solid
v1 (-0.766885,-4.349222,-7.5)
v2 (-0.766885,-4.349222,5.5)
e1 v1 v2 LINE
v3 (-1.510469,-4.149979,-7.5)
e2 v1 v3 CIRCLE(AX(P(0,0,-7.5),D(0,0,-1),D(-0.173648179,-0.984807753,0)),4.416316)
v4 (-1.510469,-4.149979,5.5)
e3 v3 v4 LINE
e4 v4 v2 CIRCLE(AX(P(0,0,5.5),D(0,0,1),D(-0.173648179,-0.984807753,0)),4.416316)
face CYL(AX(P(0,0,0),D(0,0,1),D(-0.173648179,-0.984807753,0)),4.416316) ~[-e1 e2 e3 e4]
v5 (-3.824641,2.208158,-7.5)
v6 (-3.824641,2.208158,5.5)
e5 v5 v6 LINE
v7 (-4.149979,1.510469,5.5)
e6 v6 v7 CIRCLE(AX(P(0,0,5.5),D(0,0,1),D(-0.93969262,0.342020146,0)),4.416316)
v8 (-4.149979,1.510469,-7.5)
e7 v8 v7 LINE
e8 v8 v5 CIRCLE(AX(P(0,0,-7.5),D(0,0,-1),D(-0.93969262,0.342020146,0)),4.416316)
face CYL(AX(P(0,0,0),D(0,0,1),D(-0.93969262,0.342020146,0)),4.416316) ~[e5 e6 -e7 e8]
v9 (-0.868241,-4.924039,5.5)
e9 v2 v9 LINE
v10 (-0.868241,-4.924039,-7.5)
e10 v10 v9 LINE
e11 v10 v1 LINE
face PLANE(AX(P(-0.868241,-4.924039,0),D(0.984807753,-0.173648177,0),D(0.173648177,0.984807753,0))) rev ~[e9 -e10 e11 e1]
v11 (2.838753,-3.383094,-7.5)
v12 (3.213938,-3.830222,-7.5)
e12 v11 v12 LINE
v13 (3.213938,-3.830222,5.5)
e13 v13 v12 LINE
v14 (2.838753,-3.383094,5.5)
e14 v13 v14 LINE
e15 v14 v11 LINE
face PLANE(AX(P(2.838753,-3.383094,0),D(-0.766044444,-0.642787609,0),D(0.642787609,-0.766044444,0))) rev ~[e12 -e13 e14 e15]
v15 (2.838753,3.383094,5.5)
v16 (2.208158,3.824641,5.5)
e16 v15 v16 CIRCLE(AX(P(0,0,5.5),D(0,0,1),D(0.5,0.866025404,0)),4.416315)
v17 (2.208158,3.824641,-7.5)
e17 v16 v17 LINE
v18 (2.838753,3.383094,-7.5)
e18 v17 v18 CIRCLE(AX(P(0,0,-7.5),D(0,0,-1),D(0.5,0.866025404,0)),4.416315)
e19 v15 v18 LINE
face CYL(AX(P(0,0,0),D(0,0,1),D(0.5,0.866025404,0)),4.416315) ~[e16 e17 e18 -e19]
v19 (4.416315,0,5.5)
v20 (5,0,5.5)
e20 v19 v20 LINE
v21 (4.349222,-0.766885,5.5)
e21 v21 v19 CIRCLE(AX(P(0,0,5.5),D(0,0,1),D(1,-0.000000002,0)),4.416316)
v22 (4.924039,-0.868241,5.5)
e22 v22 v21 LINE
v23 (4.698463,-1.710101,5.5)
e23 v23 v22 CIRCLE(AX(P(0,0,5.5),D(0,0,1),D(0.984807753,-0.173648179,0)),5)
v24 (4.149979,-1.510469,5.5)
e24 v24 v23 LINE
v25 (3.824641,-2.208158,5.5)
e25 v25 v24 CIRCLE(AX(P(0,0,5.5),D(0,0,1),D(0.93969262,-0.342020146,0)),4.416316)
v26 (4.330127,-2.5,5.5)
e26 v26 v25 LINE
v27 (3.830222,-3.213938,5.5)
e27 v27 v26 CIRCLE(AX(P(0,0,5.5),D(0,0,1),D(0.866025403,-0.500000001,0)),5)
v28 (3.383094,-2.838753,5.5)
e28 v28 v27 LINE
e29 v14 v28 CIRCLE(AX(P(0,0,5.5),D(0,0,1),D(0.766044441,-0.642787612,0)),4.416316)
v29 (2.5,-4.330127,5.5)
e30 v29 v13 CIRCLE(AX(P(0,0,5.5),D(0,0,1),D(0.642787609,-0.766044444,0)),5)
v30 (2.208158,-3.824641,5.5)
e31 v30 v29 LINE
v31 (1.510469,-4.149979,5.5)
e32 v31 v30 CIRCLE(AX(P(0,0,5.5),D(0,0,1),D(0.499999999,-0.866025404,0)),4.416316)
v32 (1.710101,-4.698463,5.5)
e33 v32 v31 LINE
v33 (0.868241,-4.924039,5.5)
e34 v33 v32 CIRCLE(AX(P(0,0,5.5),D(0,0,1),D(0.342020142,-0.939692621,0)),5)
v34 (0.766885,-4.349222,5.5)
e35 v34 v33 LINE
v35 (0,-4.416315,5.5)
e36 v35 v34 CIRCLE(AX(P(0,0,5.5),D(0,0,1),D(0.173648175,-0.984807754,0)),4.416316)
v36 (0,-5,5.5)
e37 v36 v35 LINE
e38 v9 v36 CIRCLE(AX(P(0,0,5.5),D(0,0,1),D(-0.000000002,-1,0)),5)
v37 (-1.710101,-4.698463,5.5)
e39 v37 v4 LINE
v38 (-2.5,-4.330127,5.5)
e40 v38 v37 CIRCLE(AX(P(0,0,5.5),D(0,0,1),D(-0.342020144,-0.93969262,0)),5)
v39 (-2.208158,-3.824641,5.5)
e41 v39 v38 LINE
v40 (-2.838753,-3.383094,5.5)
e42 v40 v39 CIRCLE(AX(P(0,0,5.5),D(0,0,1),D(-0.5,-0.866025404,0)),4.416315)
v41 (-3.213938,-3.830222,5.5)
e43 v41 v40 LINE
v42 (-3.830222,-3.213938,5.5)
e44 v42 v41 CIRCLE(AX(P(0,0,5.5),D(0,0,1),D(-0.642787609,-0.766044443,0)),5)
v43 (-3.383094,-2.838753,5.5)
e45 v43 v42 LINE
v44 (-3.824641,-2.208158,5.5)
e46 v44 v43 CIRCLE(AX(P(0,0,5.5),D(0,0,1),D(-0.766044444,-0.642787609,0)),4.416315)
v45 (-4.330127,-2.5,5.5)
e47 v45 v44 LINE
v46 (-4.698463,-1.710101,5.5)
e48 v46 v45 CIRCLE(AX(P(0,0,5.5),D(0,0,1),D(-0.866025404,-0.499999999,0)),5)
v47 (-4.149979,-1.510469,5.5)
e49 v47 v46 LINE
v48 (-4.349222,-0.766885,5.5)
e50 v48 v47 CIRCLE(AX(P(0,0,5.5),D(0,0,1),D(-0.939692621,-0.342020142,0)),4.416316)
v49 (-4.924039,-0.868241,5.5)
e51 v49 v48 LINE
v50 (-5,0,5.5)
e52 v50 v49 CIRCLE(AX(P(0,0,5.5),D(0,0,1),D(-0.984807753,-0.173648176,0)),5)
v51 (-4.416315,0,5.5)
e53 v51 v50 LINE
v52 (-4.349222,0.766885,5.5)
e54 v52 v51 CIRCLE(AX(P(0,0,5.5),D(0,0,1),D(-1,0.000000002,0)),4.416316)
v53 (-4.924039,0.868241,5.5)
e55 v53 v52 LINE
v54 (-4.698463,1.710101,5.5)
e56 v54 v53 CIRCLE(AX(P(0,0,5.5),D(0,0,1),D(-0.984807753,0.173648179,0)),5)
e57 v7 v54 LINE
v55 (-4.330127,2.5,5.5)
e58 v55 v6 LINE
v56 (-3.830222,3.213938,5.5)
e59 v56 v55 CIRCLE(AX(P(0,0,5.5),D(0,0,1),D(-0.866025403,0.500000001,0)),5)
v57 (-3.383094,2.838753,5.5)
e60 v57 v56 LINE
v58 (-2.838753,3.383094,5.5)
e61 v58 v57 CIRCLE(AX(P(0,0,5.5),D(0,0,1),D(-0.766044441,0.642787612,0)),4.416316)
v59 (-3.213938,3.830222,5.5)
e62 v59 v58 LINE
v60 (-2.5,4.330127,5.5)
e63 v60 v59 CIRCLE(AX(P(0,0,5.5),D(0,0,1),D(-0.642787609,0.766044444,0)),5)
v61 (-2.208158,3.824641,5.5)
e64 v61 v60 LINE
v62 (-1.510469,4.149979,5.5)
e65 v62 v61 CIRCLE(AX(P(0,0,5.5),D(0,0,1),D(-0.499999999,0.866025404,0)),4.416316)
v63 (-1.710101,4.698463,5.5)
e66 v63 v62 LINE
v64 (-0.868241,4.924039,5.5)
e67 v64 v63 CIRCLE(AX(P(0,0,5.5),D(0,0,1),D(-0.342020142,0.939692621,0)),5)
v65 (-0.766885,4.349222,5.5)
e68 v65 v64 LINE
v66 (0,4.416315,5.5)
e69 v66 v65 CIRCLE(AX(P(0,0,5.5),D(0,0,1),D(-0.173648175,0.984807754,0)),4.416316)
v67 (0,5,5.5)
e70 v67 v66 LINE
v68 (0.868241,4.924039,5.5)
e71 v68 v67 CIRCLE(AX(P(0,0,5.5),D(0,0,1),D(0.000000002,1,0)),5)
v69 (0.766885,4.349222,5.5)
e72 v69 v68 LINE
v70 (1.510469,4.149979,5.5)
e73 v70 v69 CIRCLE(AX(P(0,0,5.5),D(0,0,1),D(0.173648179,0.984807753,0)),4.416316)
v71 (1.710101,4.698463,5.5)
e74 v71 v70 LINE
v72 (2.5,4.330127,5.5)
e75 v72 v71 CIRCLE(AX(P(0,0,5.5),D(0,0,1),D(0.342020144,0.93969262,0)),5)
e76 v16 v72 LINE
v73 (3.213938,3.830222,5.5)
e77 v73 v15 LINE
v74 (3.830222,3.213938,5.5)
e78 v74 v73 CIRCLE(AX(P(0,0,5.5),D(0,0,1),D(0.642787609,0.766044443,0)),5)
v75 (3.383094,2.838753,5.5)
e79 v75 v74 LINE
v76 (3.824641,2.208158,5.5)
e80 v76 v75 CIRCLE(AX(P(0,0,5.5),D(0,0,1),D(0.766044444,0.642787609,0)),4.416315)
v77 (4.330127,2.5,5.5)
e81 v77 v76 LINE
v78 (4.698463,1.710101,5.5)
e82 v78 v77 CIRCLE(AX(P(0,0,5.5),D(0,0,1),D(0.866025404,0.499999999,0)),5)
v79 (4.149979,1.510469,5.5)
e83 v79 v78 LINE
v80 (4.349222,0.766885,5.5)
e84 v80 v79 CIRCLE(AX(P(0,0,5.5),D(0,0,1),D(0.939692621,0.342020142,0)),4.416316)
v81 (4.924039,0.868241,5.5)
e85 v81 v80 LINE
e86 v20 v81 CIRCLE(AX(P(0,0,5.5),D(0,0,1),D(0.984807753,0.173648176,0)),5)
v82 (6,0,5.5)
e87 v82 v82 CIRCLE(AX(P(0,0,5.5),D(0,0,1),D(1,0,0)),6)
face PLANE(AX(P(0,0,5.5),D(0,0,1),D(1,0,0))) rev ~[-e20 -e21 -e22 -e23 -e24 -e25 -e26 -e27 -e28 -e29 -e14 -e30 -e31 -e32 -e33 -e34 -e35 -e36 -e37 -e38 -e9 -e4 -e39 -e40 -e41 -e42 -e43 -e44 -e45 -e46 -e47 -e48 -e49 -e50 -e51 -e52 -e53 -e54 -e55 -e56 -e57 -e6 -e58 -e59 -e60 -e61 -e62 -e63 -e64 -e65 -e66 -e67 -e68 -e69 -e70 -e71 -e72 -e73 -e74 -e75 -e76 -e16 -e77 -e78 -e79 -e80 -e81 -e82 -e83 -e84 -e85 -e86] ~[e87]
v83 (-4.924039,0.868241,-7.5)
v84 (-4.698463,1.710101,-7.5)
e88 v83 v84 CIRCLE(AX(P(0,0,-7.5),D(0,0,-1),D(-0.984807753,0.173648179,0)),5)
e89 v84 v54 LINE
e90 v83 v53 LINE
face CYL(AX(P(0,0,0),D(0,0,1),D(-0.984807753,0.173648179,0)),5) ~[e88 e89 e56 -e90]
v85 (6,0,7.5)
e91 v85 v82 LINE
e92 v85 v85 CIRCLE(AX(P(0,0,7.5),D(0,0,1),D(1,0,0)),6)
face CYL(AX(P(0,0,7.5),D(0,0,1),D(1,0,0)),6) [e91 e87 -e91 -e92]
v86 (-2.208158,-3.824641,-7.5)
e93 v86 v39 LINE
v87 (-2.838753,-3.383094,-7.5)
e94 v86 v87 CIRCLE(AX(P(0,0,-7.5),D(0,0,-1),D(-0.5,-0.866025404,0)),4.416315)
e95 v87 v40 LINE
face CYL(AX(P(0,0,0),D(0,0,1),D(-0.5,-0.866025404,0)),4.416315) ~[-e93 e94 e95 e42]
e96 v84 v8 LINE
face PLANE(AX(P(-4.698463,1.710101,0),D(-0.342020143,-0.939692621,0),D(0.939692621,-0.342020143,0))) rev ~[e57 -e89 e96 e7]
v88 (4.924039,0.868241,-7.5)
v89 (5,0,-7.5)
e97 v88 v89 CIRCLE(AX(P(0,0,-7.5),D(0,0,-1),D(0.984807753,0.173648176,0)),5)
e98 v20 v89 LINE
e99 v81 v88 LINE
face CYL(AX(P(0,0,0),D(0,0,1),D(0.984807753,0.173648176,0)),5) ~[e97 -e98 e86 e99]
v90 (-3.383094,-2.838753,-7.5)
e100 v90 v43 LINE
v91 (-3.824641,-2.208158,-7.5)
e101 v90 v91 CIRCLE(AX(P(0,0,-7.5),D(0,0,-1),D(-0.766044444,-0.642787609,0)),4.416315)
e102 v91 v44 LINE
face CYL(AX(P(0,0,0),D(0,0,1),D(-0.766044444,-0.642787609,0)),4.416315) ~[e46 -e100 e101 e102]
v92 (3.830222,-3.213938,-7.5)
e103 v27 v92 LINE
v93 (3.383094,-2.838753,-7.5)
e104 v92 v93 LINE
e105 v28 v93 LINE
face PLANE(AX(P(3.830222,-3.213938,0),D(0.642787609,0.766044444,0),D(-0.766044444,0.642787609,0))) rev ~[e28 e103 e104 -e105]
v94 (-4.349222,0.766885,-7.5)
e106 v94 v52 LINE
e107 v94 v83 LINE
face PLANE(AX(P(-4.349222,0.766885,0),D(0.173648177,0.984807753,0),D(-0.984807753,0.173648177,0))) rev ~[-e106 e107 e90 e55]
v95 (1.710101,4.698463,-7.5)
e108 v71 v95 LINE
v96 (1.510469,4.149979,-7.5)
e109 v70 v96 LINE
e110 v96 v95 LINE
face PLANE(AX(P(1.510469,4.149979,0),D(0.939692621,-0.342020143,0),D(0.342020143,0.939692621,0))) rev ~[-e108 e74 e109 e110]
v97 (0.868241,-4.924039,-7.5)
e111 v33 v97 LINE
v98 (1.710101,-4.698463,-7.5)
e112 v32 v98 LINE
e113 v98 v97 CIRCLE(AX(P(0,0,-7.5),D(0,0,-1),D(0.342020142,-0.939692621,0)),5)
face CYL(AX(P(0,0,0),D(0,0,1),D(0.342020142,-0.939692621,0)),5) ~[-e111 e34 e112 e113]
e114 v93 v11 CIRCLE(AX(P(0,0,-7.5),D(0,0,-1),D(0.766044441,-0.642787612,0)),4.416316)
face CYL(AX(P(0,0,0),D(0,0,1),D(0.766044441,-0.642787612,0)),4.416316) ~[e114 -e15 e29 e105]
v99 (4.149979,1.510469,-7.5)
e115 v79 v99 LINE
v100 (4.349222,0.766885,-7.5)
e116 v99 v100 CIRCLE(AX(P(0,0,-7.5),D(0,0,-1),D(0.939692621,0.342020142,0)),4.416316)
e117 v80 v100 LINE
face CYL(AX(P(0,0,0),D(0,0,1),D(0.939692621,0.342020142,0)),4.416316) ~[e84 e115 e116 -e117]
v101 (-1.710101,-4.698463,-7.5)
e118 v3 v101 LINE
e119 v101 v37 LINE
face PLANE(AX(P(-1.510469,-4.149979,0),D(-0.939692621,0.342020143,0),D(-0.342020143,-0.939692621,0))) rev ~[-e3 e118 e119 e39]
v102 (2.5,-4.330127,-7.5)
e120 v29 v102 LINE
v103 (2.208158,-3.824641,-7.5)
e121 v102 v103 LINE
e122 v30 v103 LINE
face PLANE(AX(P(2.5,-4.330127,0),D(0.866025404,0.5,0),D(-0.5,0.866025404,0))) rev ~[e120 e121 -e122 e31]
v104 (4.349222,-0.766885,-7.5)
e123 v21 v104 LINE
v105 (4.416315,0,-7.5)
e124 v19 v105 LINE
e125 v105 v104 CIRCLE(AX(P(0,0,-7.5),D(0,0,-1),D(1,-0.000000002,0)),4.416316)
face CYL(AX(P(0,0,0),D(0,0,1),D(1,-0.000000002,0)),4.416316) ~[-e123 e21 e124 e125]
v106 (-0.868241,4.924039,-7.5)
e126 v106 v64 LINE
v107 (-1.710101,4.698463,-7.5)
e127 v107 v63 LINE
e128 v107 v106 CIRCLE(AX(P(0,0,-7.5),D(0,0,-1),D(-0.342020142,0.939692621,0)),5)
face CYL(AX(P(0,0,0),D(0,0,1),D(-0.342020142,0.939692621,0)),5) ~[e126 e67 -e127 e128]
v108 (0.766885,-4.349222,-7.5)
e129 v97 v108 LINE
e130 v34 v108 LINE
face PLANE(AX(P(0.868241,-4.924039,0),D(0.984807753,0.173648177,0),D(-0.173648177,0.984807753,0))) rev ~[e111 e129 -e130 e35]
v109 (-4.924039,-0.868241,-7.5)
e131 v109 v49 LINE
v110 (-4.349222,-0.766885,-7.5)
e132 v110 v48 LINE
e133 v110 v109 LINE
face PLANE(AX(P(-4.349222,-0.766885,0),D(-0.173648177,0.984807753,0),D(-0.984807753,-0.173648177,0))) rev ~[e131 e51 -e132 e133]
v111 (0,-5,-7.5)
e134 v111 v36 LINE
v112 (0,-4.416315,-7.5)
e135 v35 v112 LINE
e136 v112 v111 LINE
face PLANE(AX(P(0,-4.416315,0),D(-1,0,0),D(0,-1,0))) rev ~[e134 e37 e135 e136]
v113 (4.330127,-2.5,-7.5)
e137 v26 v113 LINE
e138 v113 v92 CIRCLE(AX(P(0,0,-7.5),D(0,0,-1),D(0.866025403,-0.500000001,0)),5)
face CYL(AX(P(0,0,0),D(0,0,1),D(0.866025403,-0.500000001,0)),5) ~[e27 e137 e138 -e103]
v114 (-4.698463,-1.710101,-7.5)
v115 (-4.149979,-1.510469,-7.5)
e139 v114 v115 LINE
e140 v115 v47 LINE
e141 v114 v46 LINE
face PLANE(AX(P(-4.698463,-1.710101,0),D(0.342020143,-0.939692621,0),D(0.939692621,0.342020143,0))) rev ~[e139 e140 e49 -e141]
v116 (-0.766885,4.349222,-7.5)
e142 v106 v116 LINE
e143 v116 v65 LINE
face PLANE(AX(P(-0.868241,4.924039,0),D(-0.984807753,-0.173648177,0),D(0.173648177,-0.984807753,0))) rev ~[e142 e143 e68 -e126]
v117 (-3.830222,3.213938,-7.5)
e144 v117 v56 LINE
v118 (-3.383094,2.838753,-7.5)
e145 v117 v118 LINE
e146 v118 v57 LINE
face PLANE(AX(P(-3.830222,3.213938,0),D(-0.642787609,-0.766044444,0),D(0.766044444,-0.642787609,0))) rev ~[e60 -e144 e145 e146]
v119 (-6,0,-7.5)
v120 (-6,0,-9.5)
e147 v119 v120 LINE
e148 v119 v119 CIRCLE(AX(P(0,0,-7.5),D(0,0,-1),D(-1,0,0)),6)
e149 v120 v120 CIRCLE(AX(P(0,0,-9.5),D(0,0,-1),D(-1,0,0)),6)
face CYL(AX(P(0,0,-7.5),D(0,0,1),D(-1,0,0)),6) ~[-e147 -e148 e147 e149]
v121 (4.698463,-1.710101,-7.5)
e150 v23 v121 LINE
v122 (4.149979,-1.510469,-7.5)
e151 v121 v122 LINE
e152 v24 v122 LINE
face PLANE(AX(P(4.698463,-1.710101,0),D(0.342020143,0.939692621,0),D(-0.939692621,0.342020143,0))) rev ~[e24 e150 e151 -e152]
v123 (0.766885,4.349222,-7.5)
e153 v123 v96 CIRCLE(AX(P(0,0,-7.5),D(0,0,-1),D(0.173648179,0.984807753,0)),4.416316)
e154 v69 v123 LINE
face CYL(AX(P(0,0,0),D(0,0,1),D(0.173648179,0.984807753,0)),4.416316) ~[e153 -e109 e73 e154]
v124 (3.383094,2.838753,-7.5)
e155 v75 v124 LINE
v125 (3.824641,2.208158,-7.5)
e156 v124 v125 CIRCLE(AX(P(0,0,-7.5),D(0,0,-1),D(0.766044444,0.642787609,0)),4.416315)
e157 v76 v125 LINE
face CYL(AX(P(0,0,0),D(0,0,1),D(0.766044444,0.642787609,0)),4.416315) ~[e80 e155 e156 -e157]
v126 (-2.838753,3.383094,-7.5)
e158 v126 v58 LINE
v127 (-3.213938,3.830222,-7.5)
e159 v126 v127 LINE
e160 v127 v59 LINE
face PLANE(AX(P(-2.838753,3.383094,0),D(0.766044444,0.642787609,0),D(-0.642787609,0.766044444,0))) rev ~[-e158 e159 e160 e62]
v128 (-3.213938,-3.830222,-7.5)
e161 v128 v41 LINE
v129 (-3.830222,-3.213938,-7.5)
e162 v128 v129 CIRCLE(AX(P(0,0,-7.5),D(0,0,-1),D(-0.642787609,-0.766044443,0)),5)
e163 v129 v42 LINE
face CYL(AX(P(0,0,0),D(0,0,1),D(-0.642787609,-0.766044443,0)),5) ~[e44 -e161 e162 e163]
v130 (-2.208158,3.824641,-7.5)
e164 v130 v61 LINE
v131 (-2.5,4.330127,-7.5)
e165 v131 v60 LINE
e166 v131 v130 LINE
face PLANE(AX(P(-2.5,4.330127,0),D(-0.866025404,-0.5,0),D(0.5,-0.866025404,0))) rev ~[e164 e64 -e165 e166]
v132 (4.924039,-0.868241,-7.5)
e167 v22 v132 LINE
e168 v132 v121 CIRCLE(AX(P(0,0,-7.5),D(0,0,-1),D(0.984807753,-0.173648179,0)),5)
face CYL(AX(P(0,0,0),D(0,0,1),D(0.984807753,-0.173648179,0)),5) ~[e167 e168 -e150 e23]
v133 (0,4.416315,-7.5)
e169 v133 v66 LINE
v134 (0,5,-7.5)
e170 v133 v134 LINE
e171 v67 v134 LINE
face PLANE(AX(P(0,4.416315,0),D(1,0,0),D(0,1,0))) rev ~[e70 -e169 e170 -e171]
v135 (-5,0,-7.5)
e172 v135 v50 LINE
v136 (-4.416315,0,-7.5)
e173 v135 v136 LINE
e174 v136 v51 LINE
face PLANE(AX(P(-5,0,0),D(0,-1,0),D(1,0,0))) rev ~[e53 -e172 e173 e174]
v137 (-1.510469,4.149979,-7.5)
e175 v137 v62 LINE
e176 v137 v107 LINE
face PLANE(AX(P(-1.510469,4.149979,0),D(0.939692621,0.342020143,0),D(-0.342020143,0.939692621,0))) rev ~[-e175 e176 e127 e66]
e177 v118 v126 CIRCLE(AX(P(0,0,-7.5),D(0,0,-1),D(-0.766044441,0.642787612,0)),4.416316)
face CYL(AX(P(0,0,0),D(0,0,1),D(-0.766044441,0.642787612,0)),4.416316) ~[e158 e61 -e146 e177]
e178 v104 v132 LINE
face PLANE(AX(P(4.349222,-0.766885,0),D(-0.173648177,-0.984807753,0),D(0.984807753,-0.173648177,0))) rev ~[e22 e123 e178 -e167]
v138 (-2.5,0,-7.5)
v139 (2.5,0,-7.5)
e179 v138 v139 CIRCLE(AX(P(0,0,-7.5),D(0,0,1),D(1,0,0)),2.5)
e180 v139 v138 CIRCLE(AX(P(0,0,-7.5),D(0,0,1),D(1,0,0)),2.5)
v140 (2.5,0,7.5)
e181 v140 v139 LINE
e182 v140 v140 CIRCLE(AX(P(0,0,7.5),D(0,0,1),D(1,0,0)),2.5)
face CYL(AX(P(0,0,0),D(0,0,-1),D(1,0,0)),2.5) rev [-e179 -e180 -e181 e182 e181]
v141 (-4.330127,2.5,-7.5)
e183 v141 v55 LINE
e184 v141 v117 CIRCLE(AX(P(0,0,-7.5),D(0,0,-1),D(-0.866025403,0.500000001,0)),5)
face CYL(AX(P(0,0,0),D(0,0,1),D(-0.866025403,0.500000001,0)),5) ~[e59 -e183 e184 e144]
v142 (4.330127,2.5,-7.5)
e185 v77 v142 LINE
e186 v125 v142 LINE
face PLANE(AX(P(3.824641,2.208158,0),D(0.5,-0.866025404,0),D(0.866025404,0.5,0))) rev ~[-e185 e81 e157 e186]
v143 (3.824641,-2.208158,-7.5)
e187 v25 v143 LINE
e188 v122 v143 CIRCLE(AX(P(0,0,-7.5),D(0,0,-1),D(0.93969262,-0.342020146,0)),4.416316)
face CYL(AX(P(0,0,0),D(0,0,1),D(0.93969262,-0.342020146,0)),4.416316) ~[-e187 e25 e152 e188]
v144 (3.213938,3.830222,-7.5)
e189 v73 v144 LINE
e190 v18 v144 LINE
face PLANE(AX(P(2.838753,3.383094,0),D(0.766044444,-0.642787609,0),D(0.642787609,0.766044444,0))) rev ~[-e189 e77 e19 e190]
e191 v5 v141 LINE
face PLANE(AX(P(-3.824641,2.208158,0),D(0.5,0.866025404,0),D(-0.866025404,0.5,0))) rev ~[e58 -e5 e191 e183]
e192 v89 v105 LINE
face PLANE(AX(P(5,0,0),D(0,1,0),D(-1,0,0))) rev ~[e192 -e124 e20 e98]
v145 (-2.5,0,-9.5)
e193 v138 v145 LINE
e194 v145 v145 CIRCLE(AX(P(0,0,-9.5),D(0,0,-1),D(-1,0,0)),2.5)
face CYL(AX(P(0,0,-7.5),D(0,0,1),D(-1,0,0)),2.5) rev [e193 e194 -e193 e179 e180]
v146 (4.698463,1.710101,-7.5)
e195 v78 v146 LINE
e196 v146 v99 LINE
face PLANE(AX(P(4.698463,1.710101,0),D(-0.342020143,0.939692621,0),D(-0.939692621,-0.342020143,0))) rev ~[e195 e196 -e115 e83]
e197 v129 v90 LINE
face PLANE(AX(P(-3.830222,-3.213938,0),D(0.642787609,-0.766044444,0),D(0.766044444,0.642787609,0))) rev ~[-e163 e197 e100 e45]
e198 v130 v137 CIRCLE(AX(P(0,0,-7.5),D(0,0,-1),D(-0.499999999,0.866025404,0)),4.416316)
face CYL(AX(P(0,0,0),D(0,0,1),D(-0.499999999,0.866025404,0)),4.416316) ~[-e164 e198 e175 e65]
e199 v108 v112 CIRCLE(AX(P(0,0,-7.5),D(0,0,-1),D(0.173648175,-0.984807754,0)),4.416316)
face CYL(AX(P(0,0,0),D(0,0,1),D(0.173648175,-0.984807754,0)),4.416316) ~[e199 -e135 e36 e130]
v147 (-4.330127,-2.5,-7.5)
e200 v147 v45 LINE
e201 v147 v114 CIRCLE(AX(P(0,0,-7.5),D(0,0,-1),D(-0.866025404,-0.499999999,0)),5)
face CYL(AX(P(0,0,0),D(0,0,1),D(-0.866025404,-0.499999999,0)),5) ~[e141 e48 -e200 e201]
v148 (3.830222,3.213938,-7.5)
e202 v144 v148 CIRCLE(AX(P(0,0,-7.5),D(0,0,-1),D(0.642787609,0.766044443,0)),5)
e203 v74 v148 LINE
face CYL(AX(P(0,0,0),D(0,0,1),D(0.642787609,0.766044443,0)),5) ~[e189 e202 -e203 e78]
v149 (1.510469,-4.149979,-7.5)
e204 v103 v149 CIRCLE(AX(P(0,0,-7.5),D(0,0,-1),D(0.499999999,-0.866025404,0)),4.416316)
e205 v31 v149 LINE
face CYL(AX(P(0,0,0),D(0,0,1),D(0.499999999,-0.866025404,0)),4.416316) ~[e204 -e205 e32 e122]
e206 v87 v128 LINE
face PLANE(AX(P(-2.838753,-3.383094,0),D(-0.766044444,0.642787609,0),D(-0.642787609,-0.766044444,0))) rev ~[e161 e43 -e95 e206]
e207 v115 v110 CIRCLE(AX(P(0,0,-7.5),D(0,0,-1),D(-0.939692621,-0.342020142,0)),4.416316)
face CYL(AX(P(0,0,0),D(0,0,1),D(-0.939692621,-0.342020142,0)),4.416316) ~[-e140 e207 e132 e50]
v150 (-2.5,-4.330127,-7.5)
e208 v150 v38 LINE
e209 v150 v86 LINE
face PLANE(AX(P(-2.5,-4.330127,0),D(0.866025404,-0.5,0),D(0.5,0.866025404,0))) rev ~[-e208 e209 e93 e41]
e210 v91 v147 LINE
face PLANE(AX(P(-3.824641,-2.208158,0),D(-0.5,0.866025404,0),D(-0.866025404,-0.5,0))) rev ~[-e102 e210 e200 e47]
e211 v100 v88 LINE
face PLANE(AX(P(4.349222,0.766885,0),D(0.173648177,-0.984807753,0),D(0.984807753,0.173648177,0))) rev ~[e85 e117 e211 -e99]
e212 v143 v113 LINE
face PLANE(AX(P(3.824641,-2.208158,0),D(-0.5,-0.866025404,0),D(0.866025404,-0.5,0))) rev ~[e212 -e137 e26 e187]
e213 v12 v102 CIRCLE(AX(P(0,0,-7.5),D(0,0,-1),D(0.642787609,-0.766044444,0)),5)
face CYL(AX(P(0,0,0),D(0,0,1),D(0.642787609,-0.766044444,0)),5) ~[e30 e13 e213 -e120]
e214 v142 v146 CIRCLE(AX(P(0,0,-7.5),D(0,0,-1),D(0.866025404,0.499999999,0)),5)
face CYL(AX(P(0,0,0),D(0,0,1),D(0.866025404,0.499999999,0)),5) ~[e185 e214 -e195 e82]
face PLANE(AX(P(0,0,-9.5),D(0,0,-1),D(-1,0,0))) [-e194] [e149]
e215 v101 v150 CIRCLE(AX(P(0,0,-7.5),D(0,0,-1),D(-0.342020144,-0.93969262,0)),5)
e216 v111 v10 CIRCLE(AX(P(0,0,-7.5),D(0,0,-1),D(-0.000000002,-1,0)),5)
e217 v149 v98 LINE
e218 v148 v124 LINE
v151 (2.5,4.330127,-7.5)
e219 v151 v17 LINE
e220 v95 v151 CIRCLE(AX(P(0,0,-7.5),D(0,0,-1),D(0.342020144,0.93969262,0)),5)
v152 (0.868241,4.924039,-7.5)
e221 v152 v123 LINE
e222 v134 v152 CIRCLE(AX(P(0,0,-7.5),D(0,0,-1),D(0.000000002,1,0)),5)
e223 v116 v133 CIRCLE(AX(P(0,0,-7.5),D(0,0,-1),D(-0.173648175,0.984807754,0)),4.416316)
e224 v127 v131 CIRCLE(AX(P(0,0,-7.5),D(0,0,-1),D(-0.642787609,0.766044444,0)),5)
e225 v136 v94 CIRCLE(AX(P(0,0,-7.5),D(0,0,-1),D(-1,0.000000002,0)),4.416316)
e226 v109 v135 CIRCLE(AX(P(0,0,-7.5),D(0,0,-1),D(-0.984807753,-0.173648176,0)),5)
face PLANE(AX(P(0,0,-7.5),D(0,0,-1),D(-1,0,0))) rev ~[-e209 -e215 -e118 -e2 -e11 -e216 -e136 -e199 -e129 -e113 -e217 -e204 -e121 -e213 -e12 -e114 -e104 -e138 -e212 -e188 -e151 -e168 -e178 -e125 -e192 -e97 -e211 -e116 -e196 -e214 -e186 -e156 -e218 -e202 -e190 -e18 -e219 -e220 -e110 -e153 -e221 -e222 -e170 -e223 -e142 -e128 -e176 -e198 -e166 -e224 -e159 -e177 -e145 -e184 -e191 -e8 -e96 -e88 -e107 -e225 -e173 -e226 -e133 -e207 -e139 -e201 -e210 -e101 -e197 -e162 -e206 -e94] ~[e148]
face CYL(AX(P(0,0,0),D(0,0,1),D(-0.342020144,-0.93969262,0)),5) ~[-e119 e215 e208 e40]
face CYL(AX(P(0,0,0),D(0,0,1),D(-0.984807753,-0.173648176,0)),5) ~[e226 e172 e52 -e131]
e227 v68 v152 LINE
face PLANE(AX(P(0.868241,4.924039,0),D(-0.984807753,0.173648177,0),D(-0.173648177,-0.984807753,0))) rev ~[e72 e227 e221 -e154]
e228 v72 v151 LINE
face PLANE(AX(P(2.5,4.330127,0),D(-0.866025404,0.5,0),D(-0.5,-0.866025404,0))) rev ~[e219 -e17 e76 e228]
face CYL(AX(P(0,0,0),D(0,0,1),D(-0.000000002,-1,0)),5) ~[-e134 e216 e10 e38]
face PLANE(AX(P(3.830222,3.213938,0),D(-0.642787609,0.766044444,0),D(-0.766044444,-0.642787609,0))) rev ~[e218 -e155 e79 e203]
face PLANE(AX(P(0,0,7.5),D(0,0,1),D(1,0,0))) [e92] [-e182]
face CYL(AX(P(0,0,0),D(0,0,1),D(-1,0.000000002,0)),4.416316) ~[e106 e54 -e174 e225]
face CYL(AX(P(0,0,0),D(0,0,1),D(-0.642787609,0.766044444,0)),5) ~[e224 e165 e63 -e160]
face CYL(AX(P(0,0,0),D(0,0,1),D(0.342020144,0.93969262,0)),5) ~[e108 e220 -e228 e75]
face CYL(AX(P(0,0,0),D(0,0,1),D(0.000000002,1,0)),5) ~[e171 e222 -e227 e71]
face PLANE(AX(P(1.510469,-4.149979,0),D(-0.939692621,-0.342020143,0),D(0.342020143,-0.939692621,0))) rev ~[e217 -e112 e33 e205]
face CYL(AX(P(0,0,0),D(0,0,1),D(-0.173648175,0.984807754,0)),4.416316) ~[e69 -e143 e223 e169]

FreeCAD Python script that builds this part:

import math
import FreeCAD as App
import Part
import Sketcher
from FreeCAD import Vector
Q = App.Units.Quantity

doc = App.newDocument("Part")
body = doc.addObject("PartDesign::Body", "Body")

# Sketch on XY plane
sketch1 = body.newObject("Sketcher::SketchObject", "Sketch")
sketch1.AttachmentSupport = (doc.getObject("XY_Plane"), [""])
sketch1.MapMode = "FlatFace"
sketch1.addGeometry(Part.LineSegment(Vector(0, 5, 0), Vector(0, 4.4, 0)), False)
sketch1.addGeometry(Part.ArcOfCircle(Part.Circle(Vector(0, 0, 0), Vector(0, 0, 1), 4.4), math.radians(90), math.radians(100)), False)
sketch1.addGeometry(Part.LineSegment(Vector(-0.8, 4.3, 0), Vector(-0.9, 4.9, 0)), False)
sketch1.addGeometry(Part.ArcOfCircle(Part.Circle(Vector(0, 0, 0), Vector(0, 0, 1), 5), math.radians(100), math.radians(110)), False)
sketch1.addGeometry(Part.LineSegment(Vector(-1.7, 4.7, 0), Vector(-1.5, 4.1, 0)), False)
sketch1.addGeometry(Part.ArcOfCircle(Part.Circle(Vector(0, 0, 0), Vector(0, 0, 1), 4.4), math.radians(110), math.radians(120)), False)
sketch1.addGeometry(Part.LineSegment(Vector(-2.2, 3.8, 0), Vector(-2.5, 4.3, 0)), False)
sketch1.addGeometry(Part.ArcOfCircle(Part.Circle(Vector(0, 0, 0), Vector(0, 0, 1), 5), math.radians(120), math.radians(130)), False)
sketch1.addGeometry(Part.LineSegment(Vector(-3.2, 3.8, 0), Vector(-2.8, 3.4, 0)), False)
sketch1.addGeometry(Part.ArcOfCircle(Part.Circle(Vector(0, 0, 0), Vector(0, 0, 1), 4.4), math.radians(130), math.radians(140)), False)
sketch1.addGeometry(Part.LineSegment(Vector(-3.4, 2.8, 0), Vector(-3.8, 3.2, 0)), False)
sketch1.addGeometry(Part.ArcOfCircle(Part.Circle(Vector(0, 0, 0), Vector(0, 0, 1), 5), math.radians(140), math.radians(150)), False)
sketch1.addGeometry(Part.LineSegment(Vector(-4.3, 2.5, 0), Vector(-3.8, 2.2, 0)), False)
sketch1.addGeometry(Part.ArcOfCircle(Part.Circle(Vector(0, 0, 0), Vector(0, 0, 1), 4.4), math.radians(150), math.radians(160)), False)
sketch1.addGeometry(Part.LineSegment(Vector(-4.1, 1.5, 0), Vector(-4.7, 1.7, 0)), False)
sketch1.addGeometry(Part.ArcOfCircle(Part.Circle(Vector(0, 0, 0), Vector(0, 0, 1), 5), math.radians(160), math.radians(170)), False)
sketch1.addGeometry(Part.LineSegment(Vector(-4.9, 0.9, 0), Vector(-4.3, 0.8, 0)), False)
sketch1.addGeometry(Part.ArcOfCircle(Part.Circle(Vector(0, 0, 0), Vector(0, 0, 1), 4.4), math.radians(170), math.radians(180)), False)
sketch1.addGeometry(Part.LineSegment(Vector(-4.4, 0, 0), Vector(-5, 0, 0)), False)
sketch1.addGeometry(Part.ArcOfCircle(Part.Circle(Vector(0, 0, 0), Vector(0, 0, 1), 5), math.radians(-180), math.radians(-170)), False)
sketch1.addGeometry(Part.LineSegment(Vector(-4.9, -0.9, 0), Vector(-4.3, -0.8, 0)), False)
sketch1.addGeometry(Part.ArcOfCircle(Part.Circle(Vector(0, 0, 0), Vector(0, 0, 1), 4.4), math.radians(-170), math.radians(-160)), False)
sketch1.addGeometry(Part.LineSegment(Vector(-4.1, -1.5, 0), Vector(-4.7, -1.7, 0)), False)
sketch1.addGeometry(Part.ArcOfCircle(Part.Circle(Vector(0, 0, 0), Vector(0, 0, 1), 5), math.radians(-160), math.radians(-150)), False)
sketch1.addGeometry(Part.LineSegment(Vector(-4.3, -2.5, 0), Vector(-3.8, -2.2, 0)), False)
sketch1.addGeometry(Part.ArcOfCircle(Part.Circle(Vector(0, 0, 0), Vector(0, 0, 1), 4.4), math.radians(-150), math.radians(-140)), False)
sketch1.addGeometry(Part.LineSegment(Vector(-3.4, -2.8, 0), Vector(-3.8, -3.2, 0)), False)
sketch1.addGeometry(Part.ArcOfCircle(Part.Circle(Vector(0, 0, 0), Vector(0, 0, 1), 5), math.radians(-140), math.radians(-130)), False)
sketch1.addGeometry(Part.LineSegment(Vector(-3.2, -3.8, 0), Vector(-2.8, -3.4, 0)), False)
sketch1.addGeometry(Part.ArcOfCircle(Part.Circle(Vector(0, 0, 0), Vector(0, 0, 1), 4.4), math.radians(-130), math.radians(-120)), False)
sketch1.addGeometry(Part.LineSegment(Vector(-2.2, -3.8, 0), Vector(-2.5, -4.3, 0)), False)
sketch1.addGeometry(Part.ArcOfCircle(Part.Circle(Vector(0, 0, 0), Vector(0, 0, 1), 5), math.radians(-120), math.radians(-110)), False)
sketch1.addGeometry(Part.LineSegment(Vector(-1.7, -4.7, 0), Vector(-1.5, -4.1, 0)), False)
sketch1.addGeometry(Part.ArcOfCircle(Part.Circle(Vector(0, 0, 0), Vector(0, 0, 1), 4.4), math.radians(-110), math.radians(-100)), False)
sketch1.addGeometry(Part.LineSegment(Vector(-0.8, -4.3, 0), Vector(-0.9, -4.9, 0)), False)
sketch1.addGeometry(Part.ArcOfCircle(Part.Circle(Vector(0, 0, 0), Vector(0, 0, 1), 5), math.radians(-100), math.radians(-90)), False)
sketch1.addGeometry(Part.LineSegment(Vector(0, -5, 0), Vector(0, -4.4, 0)), False)
sketch1.addGeometry(Part.ArcOfCircle(Part.Circle(Vector(0, 0, 0), Vector(0, 0, 1), 4.4), math.radians(-90), math.radians(-80)), False)
sketch1.addGeometry(Part.LineSegment(Vector(0.8, -4.3, 0), Vector(0.9, -4.9, 0)), False)
sketch1.addGeometry(Part.ArcOfCircle(Part.Circle(Vector(0, 0, 0), Vector(0, 0, 1), 5), math.radians(-80), math.radians(-70)), False)
sketch1.addGeometry(Part.LineSegment(Vector(1.7, -4.7, 0), Vector(1.5, -4.1, 0)), False)
sketch1.addGeometry(Part.ArcOfCircle(Part.Circle(Vector(0, 0, 0), Vector(0, 0, 1), 4.4), math.radians(-70), math.radians(-60)), False)
sketch1.addGeometry(Part.LineSegment(Vector(2.2, -3.8, 0), Vector(2.5, -4.3, 0)), False)
sketch1.addGeometry(Part.ArcOfCircle(Part.Circle(Vector(0, 0, 0), Vector(0, 0, 1), 5), math.radians(-60), math.radians(-50)), False)
sketch1.addGeometry(Part.LineSegment(Vector(3.2, -3.8, 0), Vector(2.8, -3.4, 0)), False)
sketch1.addGeometry(Part.ArcOfCircle(Part.Circle(Vector(0, 0, 0), Vector(0, 0, 1), 4.4), math.radians(-50), math.radians(-40)), False)
sketch1.addGeometry(Part.LineSegment(Vector(3.4, -2.8, 0), Vector(3.8, -3.2, 0)), False)
sketch1.addGeometry(Part.ArcOfCircle(Part.Circle(Vector(0, 0, 0), Vector(0, 0, 1), 5), math.radians(-40), math.radians(-30)), False)
sketch1.addGeometry(Part.LineSegment(Vector(4.3, -2.5, 0), Vector(3.8, -2.2, 0)), False)
sketch1.addGeometry(Part.ArcOfCircle(Part.Circle(Vector(0, 0, 0), Vector(0, 0, 1), 4.4), math.radians(-30), math.radians(-20)), False)
sketch1.addGeometry(Part.LineSegment(Vector(4.1, -1.5, 0), Vector(4.7, -1.7, 0)), False)
sketch1.addGeometry(Part.ArcOfCircle(Part.Circle(Vector(0, 0, 0), Vector(0, 0, 1), 5), math.radians(-20), math.radians(-10)), False)
sketch1.addGeometry(Part.LineSegment(Vector(4.9, -0.9, 0), Vector(4.3, -0.8, 0)), False)
sketch1.addGeometry(Part.ArcOfCircle(Part.Circle(Vector(0, 0, 0), Vector(0, 0, 1), 4.4), math.radians(-10), math.radians(0)), False)
sketch1.addGeometry(Part.LineSegment(Vector(4.4, 0, 0), Vector(5, 0, 0)), False)
sketch1.addGeometry(Part.ArcOfCircle(Part.Circle(Vector(0, 0, 0), Vector(0, 0, 1), 5), math.radians(0), math.radians(10)), False)
sketch1.addGeometry(Part.LineSegment(Vector(4.9, 0.9, 0), Vector(4.3, 0.8, 0)), False)
sketch1.addGeometry(Part.ArcOfCircle(Part.Circle(Vector(0, 0, 0), Vector(0, 0, 1), 4.4), math.radians(10), math.radians(20)), False)
sketch1.addGeometry(Part.LineSegment(Vector(4.1, 1.5, 0), Vector(4.7, 1.7, 0)), False)
sketch1.addGeometry(Part.ArcOfCircle(Part.Circle(Vector(0, 0, 0), Vector(0, 0, 1), 5), math.radians(20), math.radians(30)), False)
sketch1.addGeometry(Part.LineSegment(Vector(4.3, 2.5, 0), Vector(3.8, 2.2, 0)), False)
sketch1.addGeometry(Part.ArcOfCircle(Part.Circle(Vector(0, 0, 0), Vector(0, 0, 1), 4.4), math.radians(30), math.radians(40)), False)
sketch1.addGeometry(Part.LineSegment(Vector(3.4, 2.8, 0), Vector(3.8, 3.2, 0)), False)
sketch1.addGeometry(Part.ArcOfCircle(Part.Circle(Vector(0, 0, 0), Vector(0, 0, 1), 5), math.radians(40), math.radians(50)), False)
sketch1.addGeometry(Part.LineSegment(Vector(3.2, 3.8, 0), Vector(2.8, 3.4, 0)), False)
sketch1.addGeometry(Part.ArcOfCircle(Part.Circle(Vector(0, 0, 0), Vector(0, 0, 1), 4.4), math.radians(50), math.radians(60)), False)
sketch1.addGeometry(Part.LineSegment(Vector(2.2, 3.8, 0), Vector(2.5, 4.3, 0)), False)
sketch1.addGeometry(Part.ArcOfCircle(Part.Circle(Vector(0, 0, 0), Vector(0, 0, 1), 5), math.radians(60), math.radians(70)), False)
sketch1.addGeometry(Part.LineSegment(Vector(1.7, 4.7, 0), Vector(1.5, 4.1, 0)), False)
sketch1.addGeometry(Part.ArcOfCircle(Part.Circle(Vector(0, 0, 0), Vector(0, 0, 1), 4.4), math.radians(70), math.radians(80)), False)
sketch1.addGeometry(Part.LineSegment(Vector(0.8, 4.3, 0), Vector(0.9, 4.9, 0)), False)
sketch1.addGeometry(Part.ArcOfCircle(Part.Circle(Vector(0, 0, 0), Vector(0, 0, 1), 5), math.radians(80), math.radians(90)), False)
sketch1.addGeometry(Part.Circle(Vector(0, 0, 0), Vector(0, 0, 1), 2.5), False)
sketch1.addConstraint(Sketcher.Constraint("Coincident", 0, 2, 1, 1))
sketch1.addConstraint(Sketcher.Constraint("Coincident", 1, 2, 2, 1))
sketch1.addConstraint(Sketcher.Constraint("Coincident", 2, 2, 3, 1))
sketch1.addConstraint(Sketcher.Constraint("Coincident", 3, 2, 4, 1))
sketch1.addConstraint(Sketcher.Constraint("Coincident", 4, 2, 5, 1))
sketch1.addConstraint(Sketcher.Constraint("Coincident", 5, 2, 6, 1))
sketch1.addConstraint(Sketcher.Constraint("Coincident", 6, 2, 7, 1))
sketch1.addConstraint(Sketcher.Constraint("Coincident", 7, 2, 8, 1))
sketch1.addConstraint(Sketcher.Constraint("Coincident", 8, 2, 9, 1))
sketch1.addConstraint(Sketcher.Constraint("Coincident", 9, 2, 10, 1))
sketch1.addConstraint(Sketcher.Constraint("Coincident", 10, 2, 11, 1))
sketch1.addConstraint(Sketcher.Constraint("Coincident", 11, 2, 12, 1))
sketch1.addConstraint(Sketcher.Constraint("Coincident", 12, 2, 13, 1))
sketch1.addConstraint(Sketcher.Constraint("Coincident", 13, 2, 14, 1))
sketch1.addConstraint(Sketcher.Constraint("Coincident", 14, 2, 15, 1))
sketch1.addConstraint(Sketcher.Constraint("Coincident", 15, 2, 16, 1))
sketch1.addConstraint(Sketcher.Constraint("Coincident", 16, 2, 17, 1))
sketch1.addConstraint(Sketcher.Constraint("Coincident", 17, 2, 18, 1))
sketch1.addConstraint(Sketcher.Constraint("Coincident", 18, 2, 19, 1))
sketch1.addConstraint(Sketcher.Constraint("Coincident", 19, 2, 20, 1))
sketch1.addConstraint(Sketcher.Constraint("Coincident", 20, 2, 21, 1))
sketch1.addConstraint(Sketcher.Constraint("Coincident", 21, 2, 22, 1))
sketch1.addConstraint(Sketcher.Constraint("Coincident", 22, 2, 23, 1))
sketch1.addConstraint(Sketcher.Constraint("Coincident", 23, 2, 24, 1))
sketch1.addConstraint(Sketcher.Constraint("Coincident", 24, 2, 25, 1))
sketch1.addConstraint(Sketcher.Constraint("Coincident", 25, 2, 26, 1))
sketch1.addConstraint(Sketcher.Constraint("Coincident", 26, 2, 27, 1))
sketch1.addConstraint(Sketcher.Constraint("Coincident", 27, 2, 28, 1))
sketch1.addConstraint(Sketcher.Constraint("Coincident", 28, 2, 29, 1))
sketch1.addConstraint(Sketcher.Constraint("Coincident", 29, 2, 30, 1))
sketch1.addConstraint(Sketcher.Constraint("Coincident", 30, 2, 31, 1))
sketch1.addConstraint(Sketcher.Constraint("Coincident", 31, 2, 32, 1))
sketch1.addConstraint(Sketcher.Constraint("Coincident", 32, 2, 33, 1))
sketch1.addConstraint(Sketcher.Constraint("Coincident", 33, 2, 34, 1))
sketch1.addConstraint(Sketcher.Constraint("Coincident", 34, 2, 35, 1))
sketch1.addConstraint(Sketcher.Constraint("Coincident", 35, 2, 36, 1))
sketch1.addConstraint(Sketcher.Constraint("Coincident", 36, 2, 37, 1))
sketch1.addConstraint(Sketcher.Constraint("Coincident", 37, 2, 38, 1))
sketch1.addConstraint(Sketcher.Constraint("Coincident", 38, 2, 39, 1))
sketch1.addConstraint(Sketcher.Constraint("Coincident", 39, 2, 40, 1))
sketch1.addConstraint(Sketcher.Constraint("Coincident", 40, 2, 41, 1))
sketch1.addConstraint(Sketcher.Constraint("Coincident", 41, 2, 42, 1))
sketch1.addConstraint(Sketcher.Constraint("Coincident", 42, 2, 43, 1))
sketch1.addConstraint(Sketcher.Constraint("Coincident", 43, 2, 44, 1))
sketch1.addConstraint(Sketcher.Constraint("Coincident", 44, 2, 45, 1))
sketch1.addConstraint(Sketcher.Constraint("Coincident", 45, 2, 46, 1))
sketch1.addConstraint(Sketcher.Constraint("Coincident", 46, 2, 47, 1))
sketch1.addConstraint(Sketcher.Constraint("Coincident", 47, 2, 48, 1))
sketch1.addConstraint(Sketcher.Constraint("Coincident", 48, 2, 49, 1))
sketch1.addConstraint(Sketcher.Constraint("Coincident", 49, 2, 50, 1))
sketch1.addConstraint(Sketcher.Constraint("Coincident", 50, 2, 51, 1))
sketch1.addConstraint(Sketcher.Constraint("Coincident", 51, 2, 52, 1))
sketch1.addConstraint(Sketcher.Constraint("Coincident", 52, 2, 53, 1))
sketch1.addConstraint(Sketcher.Constraint("Coincident", 53, 2, 54, 1))
sketch1.addConstraint(Sketcher.Constraint("Coincident", 54, 2, 55, 1))
sketch1.addConstraint(Sketcher.Constraint("Coincident", 55, 2, 56, 1))
sketch1.addConstraint(Sketcher.Constraint("Coincident", 56, 2, 57, 1))
sketch1.addConstraint(Sketcher.Constraint("Coincident", 57, 2, 58, 1))
sketch1.addConstraint(Sketcher.Constraint("Coincident", 58, 2, 59, 1))
sketch1.addConstraint(Sketcher.Constraint("Coincident", 59, 2, 60, 1))
sketch1.addConstraint(Sketcher.Constraint("Coincident", 60, 2, 61, 1))
sketch1.addConstraint(Sketcher.Constraint("Coincident", 61, 2, 62, 1))
sketch1.addConstraint(Sketcher.Constraint("Coincident", 62, 2, 63, 1))
sketch1.addConstraint(Sketcher.Constraint("Coincident", 63, 2, 64, 1))
sketch1.addConstraint(Sketcher.Constraint("Coincident", 64, 2, 65, 1))
sketch1.addConstraint(Sketcher.Constraint("Coincident", 65, 2, 66, 1))
sketch1.addConstraint(Sketcher.Constraint("Coincident", 66, 2, 67, 1))
sketch1.addConstraint(Sketcher.Constraint("Coincident", 67, 2, 68, 1))
sketch1.addConstraint(Sketcher.Constraint("Coincident", 68, 2, 69, 1))
sketch1.addConstraint(Sketcher.Constraint("Coincident", 69, 2, 70, 1))
sketch1.addConstraint(Sketcher.Constraint("Coincident", 70, 2, 71, 1))
sketch1.addConstraint(Sketcher.Constraint("Coincident", 71, 2, 0, 1))
sketch1.addConstraint(Sketcher.Constraint("Vertical", 0))
sketch1.addConstraint(Sketcher.Constraint("Horizontal", 18))
sketch1.addConstraint(Sketcher.Constraint("Vertical", 36))
sketch1.addConstraint(Sketcher.Constraint("Horizontal", 54))
sketch1.addConstraint(Sketcher.Constraint("Coincident", 1, 3, -1, 1))
sketch1.addConstraint(Sketcher.Constraint("Coincident", 3, 3, -1, 1))
sketch1.addConstraint(Sketcher.Constraint("Coincident", 5, 3, -1, 1))
sketch1.addConstraint(Sketcher.Constraint("Coincident", 7, 3, -1, 1))
sketch1.addConstraint(Sketcher.Constraint("Coincident", 9, 3, -1, 1))
sketch1.addConstraint(Sketcher.Constraint("Coincident", 11, 3, -1, 1))
sketch1.addConstraint(Sketcher.Constraint("Coincident", 13, 3, -1, 1))
sketch1.addConstraint(Sketcher.Constraint("Coincident", 15, 3, -1, 1))
sketch1.addConstraint(Sketcher.Constraint("Coincident", 17, 3, -1, 1))
sketch1.addConstraint(Sketcher.Constraint("Coincident", 19, 3, -1, 1))
sketch1.addConstraint(Sketcher.Constraint("Coincident", 21, 3, -1, 1))
sketch1.addConstraint(Sketcher.Constraint("Coincident", 23, 3, -1, 1))
sketch1.addConstraint(Sketcher.Constraint("Coincident", 25, 3, -1, 1))
sketch1.addConstraint(Sketcher.Constraint("Coincident", 27, 3, -1, 1))
sketch1.addConstraint(Sketcher.Constraint("Coincident", 29, 3, -1, 1))
sketch1.addConstraint(Sketcher.Constraint("Coincident", 31, 3, -1, 1))
sketch1.addConstraint(Sketcher.Constraint("Coincident", 33, 3, -1, 1))
sketch1.addConstraint(Sketcher.Constraint("Coincident", 35, 3, -1, 1))
sketch1.addConstraint(Sketcher.Constraint("Coincident", 37, 3, -1, 1))
sketch1.addConstraint(Sketcher.Constraint("Coincident", 39, 3, -1, 1))
sketch1.addConstraint(Sketcher.Constraint("Coincident", 41, 3, -1, 1))
sketch1.addConstraint(Sketcher.Constraint("Coincident", 43, 3, -1, 1))
sketch1.addConstraint(Sketcher.Constraint("Coincident", 45, 3, -1, 1))
sketch1.addConstraint(Sketcher.Constraint("Coincident", 47, 3, -1, 1))
sketch1.addConstraint(Sketcher.Constraint("Coincident", 49, 3, -1, 1))
sketch1.addConstraint(Sketcher.Constraint("Coincident", 51, 3, -1, 1))
sketch1.addConstraint(Sketcher.Constraint("Coincident", 53, 3, -1, 1))
sketch1.addConstraint(Sketcher.Constraint("Coincident", 55, 3, -1, 1))
sketch1.addConstraint(Sketcher.Constraint("Coincident", 57, 3, -1, 1))
sketch1.addConstraint(Sketcher.Constraint("Coincident", 59, 3, -1, 1))
sketch1.addConstraint(Sketcher.Constraint("Coincident", 61, 3, -1, 1))
sketch1.addConstraint(Sketcher.Constraint("Coincident", 63, 3, -1, 1))
sketch1.addConstraint(Sketcher.Constraint("Coincident", 65, 3, -1, 1))
sketch1.addConstraint(Sketcher.Constraint("Coincident", 67, 3, -1, 1))
sketch1.addConstraint(Sketcher.Constraint("Coincident", 69, 3, -1, 1))
sketch1.addConstraint(Sketcher.Constraint("Coincident", 71, 3, -1, 1))
sketch1.addConstraint(Sketcher.Constraint("Coincident", 72, 3, -1, 1))
sketch1.addConstraint(Sketcher.Constraint("Equal", 1, 5))
sketch1.addConstraint(Sketcher.Constraint("Equal", 3, 7))
sketch1.addConstraint(Sketcher.Constraint("Equal", 5, 9))
sketch1.addConstraint(Sketcher.Constraint("Equal", 7, 11))
sketch1.addConstraint(Sketcher.Constraint("Equal", 9, 13))
sketch1.addConstraint(Sketcher.Constraint("Equal", 11, 15))
sketch1.addConstraint(Sketcher.Constraint("Equal", 13, 17))
sketch1.addConstraint(Sketcher.Constraint("Equal", 15, 19))
sketch1.addConstraint(Sketcher.Constraint("Equal", 17, 21))
sketch1.addConstraint(Sketcher.Constraint("Equal", 19, 23))
sketch1.addConstraint(Sketcher.Constraint("Equal", 21, 25))
sketch1.addConstraint(Sketcher.Constraint("Equal", 23, 27))
sketch1.addConstraint(Sketcher.Constraint("Equal", 25, 29))
sketch1.addConstraint(Sketcher.Constraint("Equal", 27, 31))
sketch1.addConstraint(Sketcher.Constraint("Equal", 29, 33))
sketch1.addConstraint(Sketcher.Constraint("Equal", 31, 35))
sketch1.addConstraint(Sketcher.Constraint("Equal", 33, 37))
sketch1.addConstraint(Sketcher.Constraint("Equal", 35, 39))
sketch1.addConstraint(Sketcher.Constraint("Equal", 37, 41))
sketch1.addConstraint(Sketcher.Constraint("Equal", 39, 43))
sketch1.addConstraint(Sketcher.Constraint("Equal", 41, 45))
sketch1.addConstraint(Sketcher.Constraint("Equal", 43, 47))
sketch1.addConstraint(Sketcher.Constraint("Equal", 45, 49))
sketch1.addConstraint(Sketcher.Constraint("Equal", 47, 51))
sketch1.addConstraint(Sketcher.Constraint("Equal", 49, 53))
sketch1.addConstraint(Sketcher.Constraint("Equal", 51, 55))
sketch1.addConstraint(Sketcher.Constraint("Equal", 53, 57))
sketch1.addConstraint(Sketcher.Constraint("Equal", 55, 59))
sketch1.addConstraint(Sketcher.Constraint("Equal", 57, 61))
sketch1.addConstraint(Sketcher.Constraint("Equal", 59, 63))
sketch1.addConstraint(Sketcher.Constraint("Equal", 61, 65))
sketch1.addConstraint(Sketcher.Constraint("Equal", 63, 67))
sketch1.addConstraint(Sketcher.Constraint("Equal", 65, 69))
sketch1.addConstraint(Sketcher.Constraint("Equal", 67, 71))
sketch1.addConstraint(Sketcher.Constraint("PointOnObject", 0, 2, -2))
sketch1.addConstraint(Sketcher.Constraint("PointOnObject", 17, 2, -1))
sketch1.addConstraint(Sketcher.Constraint("PointOnObject", 35, 2, -2))
sketch1.addConstraint(Sketcher.Constraint("PointOnObject", 53, 2, -1))
sketch1.addConstraint(Sketcher.Constraint("Perpendicular", 2, 20))
sketch1.addConstraint(Sketcher.Constraint("Perpendicular", 4, 22))
sketch1.addConstraint(Sketcher.Constraint("Perpendicular", 6, 24))
sketch1.addConstraint(Sketcher.Constraint("Perpendicular", 8, 26))
sketch1.addConstraint(Sketcher.Constraint("Perpendicular", 10, 28))
sketch1.addConstraint(Sketcher.Constraint("Perpendicular", 12, 30))
sketch1.addConstraint(Sketcher.Constraint("Perpendicular", 14, 32))
sketch1.addConstraint(Sketcher.Constraint("Perpendicular", 16, 34))
sketch1.addConstraint(Sketcher.Constraint("Perpendicular", 20, 38))
sketch1.addConstraint(Sketcher.Constraint("Perpendicular", 22, 40))
sketch1.addConstraint(Sketcher.Constraint("Perpendicular", 24, 42))
sketch1.addConstraint(Sketcher.Constraint("Perpendicular", 26, 44))
sketch1.addConstraint(Sketcher.Constraint("Perpendicular", 28, 46))
sketch1.addConstraint(Sketcher.Constraint("Perpendicular", 30, 48))
sketch1.addConstraint(Sketcher.Constraint("Perpendicular", 32, 50))
sketch1.addConstraint(Sketcher.Constraint("Perpendicular", 34, 52))
sketch1.addConstraint(Sketcher.Constraint("Perpendicular", 38, 56))
sketch1.addConstraint(Sketcher.Constraint("Perpendicular", 40, 58))
sketch1.addConstraint(Sketcher.Constraint("Perpendicular", 42, 60))
sketch1.addConstraint(Sketcher.Constraint("Perpendicular", 44, 62))
sketch1.addConstraint(Sketcher.Constraint("Perpendicular", 46, 64))
sketch1.addConstraint(Sketcher.Constraint("Perpendicular", 48, 66))
sketch1.addConstraint(Sketcher.Constraint("Perpendicular", 50, 68))
sketch1.addConstraint(Sketcher.Constraint("Perpendicular", 52, 70))
sketch1.addConstraint(Sketcher.Constraint("Horizontal", 33, 2, 37, 2))
sketch1.addConstraint(Sketcher.Constraint("Horizontal", 34, 2, 38, 2))
sketch1.addConstraint(Sketcher.Constraint("Horizontal", 31, 2, 39, 2))
sketch1.addConstraint(Sketcher.Constraint("Horizontal", 32, 2, 40, 2))
sketch1.addConstraint(Sketcher.Constraint("Horizontal", 29, 2, 41, 2))
sketch1.addConstraint(Sketcher.Constraint("Horizontal", 30, 2, 42, 2))
sketch1.addConstraint(Sketcher.Constraint("Horizontal", 27, 2, 43, 2))
sketch1.addConstraint(Sketcher.Constraint("Horizontal", 28, 2, 44, 2))
sketch1.addConstraint(Sketcher.Constraint("Horizontal", 25, 2, 45, 2))
sketch1.addConstraint(Sketcher.Constraint("Horizontal", 23, 2, 47, 2))
sketch1.addConstraint(Sketcher.Constraint("Horizontal", 21, 2, 49, 2))
sketch1.addConstraint(Sketcher.Constraint("Horizontal", 19, 2, 51, 2))
sketch1.addConstraint(Sketcher.Constraint("Horizontal", 15, 2, 55, 2))
sketch1.addConstraint(Sketcher.Constraint("Horizontal", 13, 2, 57, 2))
sketch1.addConstraint(Sketcher.Constraint("Horizontal", 11, 2, 59, 2))
sketch1.addConstraint(Sketcher.Constraint("Horizontal", 9, 2, 61, 2))
sketch1.addConstraint(Sketcher.Constraint("Horizontal", 7, 2, 63, 2))
sketch1.addConstraint(Sketcher.Constraint("Horizontal", 5, 2, 65, 2))
sketch1.addConstraint(Sketcher.Constraint("Horizontal", 3, 2, 67, 2))
sketch1.addConstraint(Sketcher.Constraint("Horizontal", 1, 2, 69, 2))
sketch1.addConstraint(Sketcher.Constraint("Vertical", 15, 2, 19, 2))
sketch1.addConstraint(Sketcher.Constraint("Vertical", 13, 2, 21, 2))
sketch1.addConstraint(Sketcher.Constraint("Vertical", 11, 2, 23, 2))
sketch1.addConstraint(Sketcher.Constraint("Vertical", 9, 2, 25, 2))
sketch1.addConstraint(Sketcher.Constraint("Vertical", 7, 2, 27, 2))
sketch1.addConstraint(Sketcher.Constraint("Vertical", 5, 2, 29, 2))
sketch1.addConstraint(Sketcher.Constraint("Vertical", 3, 2, 31, 2))
sketch1.addConstraint(Sketcher.Constraint("Vertical", 1, 2, 33, 2))
sketch1.addConstraint(Sketcher.Constraint("Diameter", 72, 5.0))
sketch1.addConstraint(Sketcher.Constraint("Radius", 3, 5.0))
sketch1.addConstraint(Sketcher.Constraint("Angle", 2, Q("100 deg")))
sketch1.addConstraint(Sketcher.Constraint("Angle", 4, Q("-70 deg")))
sketch1.addConstraint(Sketcher.Constraint("Angle", 6, Q("120 deg")))
sketch1.addConstraint(Sketcher.Constraint("Angle", 8, Q("-50 deg")))
sketch1.addConstraint(Sketcher.Constraint("DistanceX", 6, 2, -1, 1, 2.5))
sketch1.addConstraint(Sketcher.Constraint("DistanceY", -1, 1, 11, 2, 2.5))
sketch1.addConstraint(Sketcher.Constraint("Radius", 1, 4.416316))
sketch1.addConstraint(Sketcher.Constraint("DistanceX", 3, 2, -1, 1, 1.710101))
sketch1.addConstraint(Sketcher.Constraint("DistanceY", -1, 1, 14, 2, 1.710101))
sketch1.addConstraint(Sketcher.Constraint("DistanceY", -1, 1, 1, 2, 4.349222))
sketch1.addConstraint(Sketcher.Constraint("DistanceX", 7, 2, -1, 1, 3.213938))
sketch1.addConstraint(Sketcher.Constraint("DistanceY", -1, 1, 10, 2, 3.213938))
sketch1.addConstraint(Sketcher.Constraint("DistanceX", 15, 2, -1, 1, 4.924039))
pad1 = body.newObject("PartDesign::Pad", "Pad")
pad1.Profile = sketch1
pad1.Type = "TwoLengths"
pad1.Length = 7.5
pad1.Length2 = 7.5

# Sketch on XY plane
sketch2 = body.newObject("Sketcher::SketchObject", "Sketch001")
sketch2.AttachmentSupport = (doc.getObject("XY_Plane"), [""])
sketch2.MapMode = "FlatFace"
sketch2.AttachmentOffset = App.Placement(Vector(0, 0, 7.5), App.Rotation())
sketch2.addGeometry(Part.Circle(Vector(0, 0, 0), Vector(0, 0, 1), 6), False)
sketch2.addGeometry(Part.Circle(Vector(0, 0, 0), Vector(0, 0, 1), 2.5), False)
sketch2.addConstraint(Sketcher.Constraint("Coincident", 0, 3, -1, 1))
sketch2.addConstraint(Sketcher.Constraint("Coincident", 1, 3, -1, 1))
sketch2.addConstraint(Sketcher.Constraint("Diameter", 0, 12.0))
sketch2.addConstraint(Sketcher.Constraint("Diameter", 1, 5.0))
pad2 = body.newObject("PartDesign::Pad", "Pad001")
pad2.Profile = sketch2
pad2.Length = 2
pad2.Reversed = True

# Sketch on XY plane
sketch3 = body.newObject("Sketcher::SketchObject", "Sketch002")
sketch3.AttachmentSupport = (doc.getObject("XY_Plane"), [""])
sketch3.MapMode = "FlatFace"
sketch3.AttachmentOffset = App.Placement(Vector(0, 0, -7.5), App.Rotation())
sketch3.addGeometry(Part.Circle(Vector(0, 0, 0), Vector(0, 0, 1), 6), False)
sketch3.addGeometry(Part.Circle(Vector(0, 0, 0), Vector(0, 0, 1), 2.5), False)
sketch3.addConstraint(Sketcher.Constraint("Coincident", 0, 3, -1, 1))
sketch3.addConstraint(Sketcher.Constraint("Coincident", 1, 3, -1, 1))
sketch3.addConstraint(Sketcher.Constraint("Diameter", 0, 12.0))
sketch3.addConstraint(Sketcher.Constraint("Diameter", 1, 5.0))
pad3 = body.newObject("PartDesign::Pad", "Pad002")
pad3.Profile = sketch3
pad3.Length = 2
pad3.Reversed = True

doc.recompute()
